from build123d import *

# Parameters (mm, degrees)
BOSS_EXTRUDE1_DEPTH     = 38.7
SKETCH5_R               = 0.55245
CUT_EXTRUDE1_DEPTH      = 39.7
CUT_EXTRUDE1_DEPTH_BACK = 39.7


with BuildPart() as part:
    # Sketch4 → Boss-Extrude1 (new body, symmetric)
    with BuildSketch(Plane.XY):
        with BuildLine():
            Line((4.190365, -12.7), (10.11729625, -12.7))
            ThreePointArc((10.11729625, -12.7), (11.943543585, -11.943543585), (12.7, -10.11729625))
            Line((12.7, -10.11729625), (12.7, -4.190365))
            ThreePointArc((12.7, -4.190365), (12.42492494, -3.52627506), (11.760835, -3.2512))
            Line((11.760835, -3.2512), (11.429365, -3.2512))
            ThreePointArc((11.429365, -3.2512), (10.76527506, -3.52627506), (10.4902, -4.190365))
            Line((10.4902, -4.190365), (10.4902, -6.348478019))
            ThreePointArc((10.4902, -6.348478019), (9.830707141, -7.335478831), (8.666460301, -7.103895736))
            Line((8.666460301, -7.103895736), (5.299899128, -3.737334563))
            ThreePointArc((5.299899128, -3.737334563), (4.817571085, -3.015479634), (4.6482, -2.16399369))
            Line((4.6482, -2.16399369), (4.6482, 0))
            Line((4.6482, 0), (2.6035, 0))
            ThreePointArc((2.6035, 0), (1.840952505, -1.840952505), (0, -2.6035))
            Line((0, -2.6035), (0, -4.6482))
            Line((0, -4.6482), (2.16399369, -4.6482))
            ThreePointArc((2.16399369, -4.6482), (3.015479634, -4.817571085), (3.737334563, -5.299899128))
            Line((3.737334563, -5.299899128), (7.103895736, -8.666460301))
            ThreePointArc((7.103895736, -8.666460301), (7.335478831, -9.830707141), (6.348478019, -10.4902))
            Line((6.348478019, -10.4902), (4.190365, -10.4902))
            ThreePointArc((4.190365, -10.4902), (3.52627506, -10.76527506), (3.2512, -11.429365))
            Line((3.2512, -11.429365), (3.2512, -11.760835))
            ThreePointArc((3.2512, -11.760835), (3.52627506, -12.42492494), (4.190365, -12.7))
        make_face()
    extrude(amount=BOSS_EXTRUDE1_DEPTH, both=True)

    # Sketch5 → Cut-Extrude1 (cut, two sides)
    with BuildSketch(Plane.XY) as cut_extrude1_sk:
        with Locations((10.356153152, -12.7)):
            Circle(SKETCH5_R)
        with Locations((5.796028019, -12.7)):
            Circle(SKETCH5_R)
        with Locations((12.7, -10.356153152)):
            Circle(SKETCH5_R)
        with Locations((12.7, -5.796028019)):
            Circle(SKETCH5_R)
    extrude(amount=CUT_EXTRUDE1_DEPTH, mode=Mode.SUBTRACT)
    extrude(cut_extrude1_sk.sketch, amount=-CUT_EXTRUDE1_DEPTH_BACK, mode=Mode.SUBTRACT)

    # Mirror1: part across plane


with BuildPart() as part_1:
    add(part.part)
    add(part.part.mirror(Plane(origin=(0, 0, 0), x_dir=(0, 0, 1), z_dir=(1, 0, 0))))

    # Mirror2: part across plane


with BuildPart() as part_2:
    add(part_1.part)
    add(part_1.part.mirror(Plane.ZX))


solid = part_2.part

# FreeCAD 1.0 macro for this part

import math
import FreeCAD as App
import Part
import Sketcher

V = App.Vector
Q = App.Units.Quantity

doc = App.newDocument("Part")
params = doc.addObject("Spreadsheet::Sheet", "Params")
for row, (alias, value) in enumerate([
    ("pad1_length", "77.4 mm"),
], start=1):
    params.set(f"A{row}", alias)
    params.set(f"B{row}", "=" + value)
    params.setAlias(f"B{row}", alias)

body = doc.addObject("PartDesign::Body", "Body")

# Sketch on XY plane
sketch1 = doc.addObject("Sketcher::SketchObject", "Sketch")
body.addObject(sketch1)
sketch1.AttachmentSupport = (doc.XY_Plane, [""])
sketch1.MapMode = "FlatFace"
sketch1.addGeometry(Part.LineSegment(V(4.190365, -12.7, 0), V(10.117296, -12.7, 0)), False)
sketch1.addGeometry(Part.ArcOfCircle(Part.Circle(V(10.117296, -10.117296, 0), V(0, 0, 1), 2.582704), math.radians(-90), math.radians(0)), False)
sketch1.addGeometry(Part.LineSegment(V(12.7, -10.117296, 0), V(12.7, -4.190365, 0)), False)
sketch1.addGeometry(Part.ArcOfCircle(Part.Circle(V(11.760835, -4.190365, 0), V(0, 0, 1), 0.939165), math.radians(0), math.radians(90)), False)
sketch1.addGeometry(Part.LineSegment(V(11.760835, -3.2512, 0), V(11.429365, -3.2512, 0)), False)
sketch1.addGeometry(Part.ArcOfCircle(Part.Circle(V(11.429365, -4.190365, 0), V(0, 0, 1), 0.939165), math.radians(90), math.radians(180)), False)
sketch1.addGeometry(Part.LineSegment(V(10.4902, -4.190365, 0), V(10.4902, -6.348478, 0)), False)
sketch1.addGeometry(Part.ArcOfCircle(Part.Circle(V(9.421878, -6.348478, 0), V(0, 0, 1), 1.068322), math.radians(-135), math.radians(0)), False)
sketch1.addGeometry(Part.LineSegment(V(8.66646, -7.103896, 0), V(5.299899, -3.737335, 0)), False)
sketch1.addGeometry(Part.ArcOfCircle(Part.Circle(V(6.87324, -2.163994, 0), V(0, 0, 1), 2.22504), math.radians(-180), math.radians(-135)), False)
sketch1.addGeometry(Part.LineSegment(V(4.6482, -2.163994, 0), V(4.6482, 0, 0)), False)
sketch1.addGeometry(Part.LineSegment(V(4.6482, 0, 0), V(2.6035, 0, 0)), False)
sketch1.addGeometry(Part.ArcOfCircle(Part.Circle(V(0, 0, 0), V(0, 0, 1), 2.6035), math.radians(-90), math.radians(0)), False)
sketch1.addGeometry(Part.LineSegment(V(0, -2.6035, 0), V(0, -4.6482, 0)), False)
sketch1.addGeometry(Part.LineSegment(V(0, -4.6482, 0), V(2.163994, -4.6482, 0)), False)
sketch1.addGeometry(Part.ArcOfCircle(Part.Circle(V(2.163994, -6.87324, 0), V(0, 0, 1), 2.22504), math.radians(45), math.radians(90)), False)
sketch1.addGeometry(Part.LineSegment(V(3.737335, -5.299899, 0), V(7.103896, -8.66646, 0)), False)
sketch1.addGeometry(Part.ArcOfCircle(Part.Circle(V(6.348478, -9.421878, 0), V(0, 0, 1), 1.068322), math.radians(-90), math.radians(45)), False)
sketch1.addGeometry(Part.LineSegment(V(6.348478, -10.4902, 0), V(4.190365, -10.4902, 0)), False)
sketch1.addGeometry(Part.ArcOfCircle(Part.Circle(V(4.190365, -11.429365, 0), V(0, 0, 1), 0.939165), math.radians(90), math.radians(180)), False)
sketch1.addGeometry(Part.LineSegment(V(3.2512, -11.429365, 0), V(3.2512, -11.760835, 0)), False)
sketch1.addGeometry(Part.ArcOfCircle(Part.Circle(V(4.190365, -11.760835, 0), V(0, 0, 1), 0.939165), math.radians(-180), math.radians(-90)), False)
sketch1.addConstraint(Sketcher.Constraint("Tangent", 0, 2, 1, 1))
sketch1.addConstraint(Sketcher.Constraint("Tangent", 1, 2, 2, 1))
sketch1.addConstraint(Sketcher.Constraint("Tangent", 2, 2, 3, 1))
sketch1.addConstraint(Sketcher.Constraint("Tangent", 3, 2, 4, 1))
sketch1.addConstraint(Sketcher.Constraint("Tangent", 4, 2, 5, 1))
sketch1.addConstraint(Sketcher.Constraint("Tangent", 5, 2, 6, 1))
sketch1.addConstraint(Sketcher.Constraint("Tangent", 6, 2, 7, 2))
sketch1.addConstraint(Sketcher.Constraint("Tangent", 7, 1, 8, 1))
sketch1.addConstraint(Sketcher.Constraint("Tangent", 8, 2, 9, 2))
sketch1.addConstraint(Sketcher.Constraint("Tangent", 9, 1, 10, 1))
sketch1.addConstraint(Sketcher.Constraint("Coincident", 10, 2, 11, 1))
sketch1.addConstraint(Sketcher.Constraint("Coincident", 11, 2, 12, 2))
sketch1.addConstraint(Sketcher.Constraint("Coincident", 12, 1, 13, 1))
sketch1.addConstraint(Sketcher.Constraint("Coincident", 13, 2, 14, 1))
sketch1.addConstraint(Sketcher.Constraint("Tangent", 14, 2, 15, 2))
sketch1.addConstraint(Sketcher.Constraint("Tangent", 15, 1, 16, 1))
sketch1.addConstraint(Sketcher.Constraint("Tangent", 16, 2, 17, 2))
sketch1.addConstraint(Sketcher.Constraint("Tangent", 17, 1, 18, 1))
sketch1.addConstraint(Sketcher.Constraint("Tangent", 18, 2, 19, 1))
sketch1.addConstraint(Sketcher.Constraint("Tangent", 19, 2, 20, 1))
sketch1.addConstraint(Sketcher.Constraint("Tangent", 20, 2, 21, 1))
sketch1.addConstraint(Sketcher.Constraint("Tangent", 21, 2, 0, 1))
sketch1.addConstraint(Sketcher.Constraint("Horizontal", 0))
sketch1.addConstraint(Sketcher.Constraint("Vertical", 2))
sketch1.addConstraint(Sketcher.Constraint("Horizontal", 4))
sketch1.addConstraint(Sketcher.Constraint("Vertical", 6))
sketch1.addConstraint(Sketcher.Constraint("Vertical", 10))
sketch1.addConstraint(Sketcher.Constraint("Horizontal", 11))
sketch1.addConstraint(Sketcher.Constraint("Vertical", 13))
sketch1.addConstraint(Sketcher.Constraint("Horizontal", 14))
sketch1.addConstraint(Sketcher.Constraint("Horizontal", 18))
sketch1.addConstraint(Sketcher.Constraint("Vertical", 20))
sketch1.addConstraint(Sketcher.Constraint("Coincident", 12, 3, -1, 1))
sketch1.addConstraint(Sketcher.Constraint("Equal", 3, 5))
sketch1.addConstraint(Sketcher.Constraint("Equal", 9, 15))
sketch1.addConstraint(Sketcher.Constraint("Equal", 7, 17))
sketch1.addConstraint(Sketcher.Constraint("Equal", 5, 19))
sketch1.addConstraint(Sketcher.Constraint("Equal", 19, 21))
sketch1.addConstraint(Sketcher.Constraint("PointOnObject", 10, 2, -1))
sketch1.addConstraint(Sketcher.Constraint("PointOnObject", 12, 1, -2))
sketch1.addConstraint(Sketcher.Constraint("Parallel", 8, 16))
sketch1.addConstraint(Sketcher.Constraint("Equal", 0, 2))
sketch1.addConstraint(Sketcher.Constraint("Equal", 18, 6))
sketch1.addConstraint(Sketcher.Constraint("Equal", 14, 10))
sketch1.addConstraint(Sketcher.Constraint("Equal", 11, 13))
sketch1.addConstraint(Sketcher.Constraint("Equal", 4, 20))
sketch1.addConstraint(Sketcher.Constraint("Equal", 8, 16))
sketch1.addConstraint(Sketcher.Constraint("DistanceY", 0, 2, -1, 1, Q("12.7 mm")))
sketch1.addConstraint(Sketcher.Constraint("Radius", 12, Q("2.6035 mm")))
sketch1.addConstraint(Sketcher.Constraint("Radius", 7, Q("1.068322 mm")))
sketch1.addConstraint(Sketcher.Constraint("Radius", 9, Q("2.22504 mm")))
sketch1.addConstraint(Sketcher.Constraint("DistanceX", 11, 2, 11, 1, Q("2.0447 mm")))
sketch1.addConstraint(Sketcher.Constraint("Radius", 1, Q("2.582704 mm")))
sketch1.addConstraint(Sketcher.Constraint("Radius", 3, Q("0.939165 mm")))
sketch1.addConstraint(Sketcher.Constraint("DistanceX", 9, 1, 5, 2, Q("5.842 mm")))
sketch1.addConstraint(Sketcher.Constraint("DistanceX", 0, 1, 0, 2, Q("5.926931 mm")))
sketch1.addConstraint(Sketcher.Constraint("DistanceX", 17, 3, 7, 3, Q("3.0734 mm")))
pad1 = doc.addObject("PartDesign::Pad", "Pad")
body.addObject(pad1)
pad1.Profile = sketch1
pad1.setExpression("Length", "Params.pad1_length")
pad1.Midplane = True

# Sketch on XY plane
sketch2 = doc.addObject("Sketcher::SketchObject", "Sketch001")
body.addObject(sketch2)
sketch2.AttachmentSupport = (doc.XY_Plane, [""])
sketch2.MapMode = "FlatFace"
sketch2.addGeometry(Part.Circle(V(10.356153, -12.7, 0), V(0, 0, 1), 0.55245), False)
sketch2.addGeometry(Part.Circle(V(5.796028, -12.7, 0), V(0, 0, 1), 0.55245), False)
sketch2.addGeometry(Part.Circle(V(12.7, -10.356153, 0), V(0, 0, 1), 0.55245), False)
sketch2.addGeometry(Part.Circle(V(12.7, -5.796028, 0), V(0, 0, 1), 0.55245), False)
sketch2.addConstraint(Sketcher.Constraint("Equal", 0, 1))
sketch2.addConstraint(Sketcher.Constraint("Equal", 1, 2))
sketch2.addConstraint(Sketcher.Constraint("Equal", 2, 3))
sketch2.addConstraint(Sketcher.Constraint("Horizontal", 0, 3, 1, 3))
sketch2.addConstraint(Sketcher.Constraint("Vertical", 2, 3, 3, 3))
sketch2.addConstraint(Sketcher.Constraint("Diameter", 0, Q("1.1049 mm")))
sketch2.addConstraint(Sketcher.Constraint("DistanceY", 0, 3, -1, 1, Q("12.7 mm")))
sketch2.addConstraint(Sketcher.Constraint("DistanceX", -1, 1, 2, 3, Q("12.7 mm")))
sketch2.addConstraint(Sketcher.Constraint("DistanceX", -1, 1, 1, 3, Q("5.796028 mm")))
sketch2.addConstraint(Sketcher.Constraint("DistanceY", 3, 3, -1, 1, Q("5.796028 mm")))
sketch2.addConstraint(Sketcher.Constraint("DistanceX", -1, 1, 0, 3, Q("10.356153 mm")))
sketch2.addConstraint(Sketcher.Constraint("DistanceY", 2, 3, -1, 1, Q("10.356153 mm")))
pocket1 = doc.addObject("PartDesign::Pocket", "Pocket")
body.addObject(pocket1)
pocket1.Profile = sketch2
pocket1.Type = "ThroughAll"
pocket1.Midplane = True
body2 = doc.addObject("PartDesign::Body", "Body001")
doc.recompute()

body2.BaseFeature = body
doc.recompute()

mirroring = doc.addObject("Part::Mirroring", "Mirroring")
mirroring.Source = body
mirroring.Base = V(0, 0, 0)
mirroring.Normal = V(1, 0, 0)
body3 = doc.addObject("PartDesign::Body", "Body002")
body3.BaseFeature = mirroring
boolean = doc.addObject("PartDesign::Boolean", "Boolean")
body2.addObject(boolean)
boolean.Type = "Fuse"
boolean.addObjects([body3])
doc.recompute()
body4 = doc.addObject("PartDesign::Body", "Body003")
doc.recompute()

body4.BaseFeature = body2
doc.recompute()

mirroring2 = doc.addObject("Part::Mirroring", "Mirroring001")
mirroring2.Source = body2
mirroring2.Base = V(0, 0, 0)
mirroring2.Normal = V(0, 1, 0)
body5 = doc.addObject("PartDesign::Body", "Body004")
body5.BaseFeature = mirroring2
boolean2 = doc.addObject("PartDesign::Boolean", "Boolean001")
body4.addObject(boolean2)
boolean2.Type = "Fuse"
boolean2.addObjects([body5])
doc.recompute()
mirroring.Visibility = False
mirroring2.Visibility = False

doc.recompute()
